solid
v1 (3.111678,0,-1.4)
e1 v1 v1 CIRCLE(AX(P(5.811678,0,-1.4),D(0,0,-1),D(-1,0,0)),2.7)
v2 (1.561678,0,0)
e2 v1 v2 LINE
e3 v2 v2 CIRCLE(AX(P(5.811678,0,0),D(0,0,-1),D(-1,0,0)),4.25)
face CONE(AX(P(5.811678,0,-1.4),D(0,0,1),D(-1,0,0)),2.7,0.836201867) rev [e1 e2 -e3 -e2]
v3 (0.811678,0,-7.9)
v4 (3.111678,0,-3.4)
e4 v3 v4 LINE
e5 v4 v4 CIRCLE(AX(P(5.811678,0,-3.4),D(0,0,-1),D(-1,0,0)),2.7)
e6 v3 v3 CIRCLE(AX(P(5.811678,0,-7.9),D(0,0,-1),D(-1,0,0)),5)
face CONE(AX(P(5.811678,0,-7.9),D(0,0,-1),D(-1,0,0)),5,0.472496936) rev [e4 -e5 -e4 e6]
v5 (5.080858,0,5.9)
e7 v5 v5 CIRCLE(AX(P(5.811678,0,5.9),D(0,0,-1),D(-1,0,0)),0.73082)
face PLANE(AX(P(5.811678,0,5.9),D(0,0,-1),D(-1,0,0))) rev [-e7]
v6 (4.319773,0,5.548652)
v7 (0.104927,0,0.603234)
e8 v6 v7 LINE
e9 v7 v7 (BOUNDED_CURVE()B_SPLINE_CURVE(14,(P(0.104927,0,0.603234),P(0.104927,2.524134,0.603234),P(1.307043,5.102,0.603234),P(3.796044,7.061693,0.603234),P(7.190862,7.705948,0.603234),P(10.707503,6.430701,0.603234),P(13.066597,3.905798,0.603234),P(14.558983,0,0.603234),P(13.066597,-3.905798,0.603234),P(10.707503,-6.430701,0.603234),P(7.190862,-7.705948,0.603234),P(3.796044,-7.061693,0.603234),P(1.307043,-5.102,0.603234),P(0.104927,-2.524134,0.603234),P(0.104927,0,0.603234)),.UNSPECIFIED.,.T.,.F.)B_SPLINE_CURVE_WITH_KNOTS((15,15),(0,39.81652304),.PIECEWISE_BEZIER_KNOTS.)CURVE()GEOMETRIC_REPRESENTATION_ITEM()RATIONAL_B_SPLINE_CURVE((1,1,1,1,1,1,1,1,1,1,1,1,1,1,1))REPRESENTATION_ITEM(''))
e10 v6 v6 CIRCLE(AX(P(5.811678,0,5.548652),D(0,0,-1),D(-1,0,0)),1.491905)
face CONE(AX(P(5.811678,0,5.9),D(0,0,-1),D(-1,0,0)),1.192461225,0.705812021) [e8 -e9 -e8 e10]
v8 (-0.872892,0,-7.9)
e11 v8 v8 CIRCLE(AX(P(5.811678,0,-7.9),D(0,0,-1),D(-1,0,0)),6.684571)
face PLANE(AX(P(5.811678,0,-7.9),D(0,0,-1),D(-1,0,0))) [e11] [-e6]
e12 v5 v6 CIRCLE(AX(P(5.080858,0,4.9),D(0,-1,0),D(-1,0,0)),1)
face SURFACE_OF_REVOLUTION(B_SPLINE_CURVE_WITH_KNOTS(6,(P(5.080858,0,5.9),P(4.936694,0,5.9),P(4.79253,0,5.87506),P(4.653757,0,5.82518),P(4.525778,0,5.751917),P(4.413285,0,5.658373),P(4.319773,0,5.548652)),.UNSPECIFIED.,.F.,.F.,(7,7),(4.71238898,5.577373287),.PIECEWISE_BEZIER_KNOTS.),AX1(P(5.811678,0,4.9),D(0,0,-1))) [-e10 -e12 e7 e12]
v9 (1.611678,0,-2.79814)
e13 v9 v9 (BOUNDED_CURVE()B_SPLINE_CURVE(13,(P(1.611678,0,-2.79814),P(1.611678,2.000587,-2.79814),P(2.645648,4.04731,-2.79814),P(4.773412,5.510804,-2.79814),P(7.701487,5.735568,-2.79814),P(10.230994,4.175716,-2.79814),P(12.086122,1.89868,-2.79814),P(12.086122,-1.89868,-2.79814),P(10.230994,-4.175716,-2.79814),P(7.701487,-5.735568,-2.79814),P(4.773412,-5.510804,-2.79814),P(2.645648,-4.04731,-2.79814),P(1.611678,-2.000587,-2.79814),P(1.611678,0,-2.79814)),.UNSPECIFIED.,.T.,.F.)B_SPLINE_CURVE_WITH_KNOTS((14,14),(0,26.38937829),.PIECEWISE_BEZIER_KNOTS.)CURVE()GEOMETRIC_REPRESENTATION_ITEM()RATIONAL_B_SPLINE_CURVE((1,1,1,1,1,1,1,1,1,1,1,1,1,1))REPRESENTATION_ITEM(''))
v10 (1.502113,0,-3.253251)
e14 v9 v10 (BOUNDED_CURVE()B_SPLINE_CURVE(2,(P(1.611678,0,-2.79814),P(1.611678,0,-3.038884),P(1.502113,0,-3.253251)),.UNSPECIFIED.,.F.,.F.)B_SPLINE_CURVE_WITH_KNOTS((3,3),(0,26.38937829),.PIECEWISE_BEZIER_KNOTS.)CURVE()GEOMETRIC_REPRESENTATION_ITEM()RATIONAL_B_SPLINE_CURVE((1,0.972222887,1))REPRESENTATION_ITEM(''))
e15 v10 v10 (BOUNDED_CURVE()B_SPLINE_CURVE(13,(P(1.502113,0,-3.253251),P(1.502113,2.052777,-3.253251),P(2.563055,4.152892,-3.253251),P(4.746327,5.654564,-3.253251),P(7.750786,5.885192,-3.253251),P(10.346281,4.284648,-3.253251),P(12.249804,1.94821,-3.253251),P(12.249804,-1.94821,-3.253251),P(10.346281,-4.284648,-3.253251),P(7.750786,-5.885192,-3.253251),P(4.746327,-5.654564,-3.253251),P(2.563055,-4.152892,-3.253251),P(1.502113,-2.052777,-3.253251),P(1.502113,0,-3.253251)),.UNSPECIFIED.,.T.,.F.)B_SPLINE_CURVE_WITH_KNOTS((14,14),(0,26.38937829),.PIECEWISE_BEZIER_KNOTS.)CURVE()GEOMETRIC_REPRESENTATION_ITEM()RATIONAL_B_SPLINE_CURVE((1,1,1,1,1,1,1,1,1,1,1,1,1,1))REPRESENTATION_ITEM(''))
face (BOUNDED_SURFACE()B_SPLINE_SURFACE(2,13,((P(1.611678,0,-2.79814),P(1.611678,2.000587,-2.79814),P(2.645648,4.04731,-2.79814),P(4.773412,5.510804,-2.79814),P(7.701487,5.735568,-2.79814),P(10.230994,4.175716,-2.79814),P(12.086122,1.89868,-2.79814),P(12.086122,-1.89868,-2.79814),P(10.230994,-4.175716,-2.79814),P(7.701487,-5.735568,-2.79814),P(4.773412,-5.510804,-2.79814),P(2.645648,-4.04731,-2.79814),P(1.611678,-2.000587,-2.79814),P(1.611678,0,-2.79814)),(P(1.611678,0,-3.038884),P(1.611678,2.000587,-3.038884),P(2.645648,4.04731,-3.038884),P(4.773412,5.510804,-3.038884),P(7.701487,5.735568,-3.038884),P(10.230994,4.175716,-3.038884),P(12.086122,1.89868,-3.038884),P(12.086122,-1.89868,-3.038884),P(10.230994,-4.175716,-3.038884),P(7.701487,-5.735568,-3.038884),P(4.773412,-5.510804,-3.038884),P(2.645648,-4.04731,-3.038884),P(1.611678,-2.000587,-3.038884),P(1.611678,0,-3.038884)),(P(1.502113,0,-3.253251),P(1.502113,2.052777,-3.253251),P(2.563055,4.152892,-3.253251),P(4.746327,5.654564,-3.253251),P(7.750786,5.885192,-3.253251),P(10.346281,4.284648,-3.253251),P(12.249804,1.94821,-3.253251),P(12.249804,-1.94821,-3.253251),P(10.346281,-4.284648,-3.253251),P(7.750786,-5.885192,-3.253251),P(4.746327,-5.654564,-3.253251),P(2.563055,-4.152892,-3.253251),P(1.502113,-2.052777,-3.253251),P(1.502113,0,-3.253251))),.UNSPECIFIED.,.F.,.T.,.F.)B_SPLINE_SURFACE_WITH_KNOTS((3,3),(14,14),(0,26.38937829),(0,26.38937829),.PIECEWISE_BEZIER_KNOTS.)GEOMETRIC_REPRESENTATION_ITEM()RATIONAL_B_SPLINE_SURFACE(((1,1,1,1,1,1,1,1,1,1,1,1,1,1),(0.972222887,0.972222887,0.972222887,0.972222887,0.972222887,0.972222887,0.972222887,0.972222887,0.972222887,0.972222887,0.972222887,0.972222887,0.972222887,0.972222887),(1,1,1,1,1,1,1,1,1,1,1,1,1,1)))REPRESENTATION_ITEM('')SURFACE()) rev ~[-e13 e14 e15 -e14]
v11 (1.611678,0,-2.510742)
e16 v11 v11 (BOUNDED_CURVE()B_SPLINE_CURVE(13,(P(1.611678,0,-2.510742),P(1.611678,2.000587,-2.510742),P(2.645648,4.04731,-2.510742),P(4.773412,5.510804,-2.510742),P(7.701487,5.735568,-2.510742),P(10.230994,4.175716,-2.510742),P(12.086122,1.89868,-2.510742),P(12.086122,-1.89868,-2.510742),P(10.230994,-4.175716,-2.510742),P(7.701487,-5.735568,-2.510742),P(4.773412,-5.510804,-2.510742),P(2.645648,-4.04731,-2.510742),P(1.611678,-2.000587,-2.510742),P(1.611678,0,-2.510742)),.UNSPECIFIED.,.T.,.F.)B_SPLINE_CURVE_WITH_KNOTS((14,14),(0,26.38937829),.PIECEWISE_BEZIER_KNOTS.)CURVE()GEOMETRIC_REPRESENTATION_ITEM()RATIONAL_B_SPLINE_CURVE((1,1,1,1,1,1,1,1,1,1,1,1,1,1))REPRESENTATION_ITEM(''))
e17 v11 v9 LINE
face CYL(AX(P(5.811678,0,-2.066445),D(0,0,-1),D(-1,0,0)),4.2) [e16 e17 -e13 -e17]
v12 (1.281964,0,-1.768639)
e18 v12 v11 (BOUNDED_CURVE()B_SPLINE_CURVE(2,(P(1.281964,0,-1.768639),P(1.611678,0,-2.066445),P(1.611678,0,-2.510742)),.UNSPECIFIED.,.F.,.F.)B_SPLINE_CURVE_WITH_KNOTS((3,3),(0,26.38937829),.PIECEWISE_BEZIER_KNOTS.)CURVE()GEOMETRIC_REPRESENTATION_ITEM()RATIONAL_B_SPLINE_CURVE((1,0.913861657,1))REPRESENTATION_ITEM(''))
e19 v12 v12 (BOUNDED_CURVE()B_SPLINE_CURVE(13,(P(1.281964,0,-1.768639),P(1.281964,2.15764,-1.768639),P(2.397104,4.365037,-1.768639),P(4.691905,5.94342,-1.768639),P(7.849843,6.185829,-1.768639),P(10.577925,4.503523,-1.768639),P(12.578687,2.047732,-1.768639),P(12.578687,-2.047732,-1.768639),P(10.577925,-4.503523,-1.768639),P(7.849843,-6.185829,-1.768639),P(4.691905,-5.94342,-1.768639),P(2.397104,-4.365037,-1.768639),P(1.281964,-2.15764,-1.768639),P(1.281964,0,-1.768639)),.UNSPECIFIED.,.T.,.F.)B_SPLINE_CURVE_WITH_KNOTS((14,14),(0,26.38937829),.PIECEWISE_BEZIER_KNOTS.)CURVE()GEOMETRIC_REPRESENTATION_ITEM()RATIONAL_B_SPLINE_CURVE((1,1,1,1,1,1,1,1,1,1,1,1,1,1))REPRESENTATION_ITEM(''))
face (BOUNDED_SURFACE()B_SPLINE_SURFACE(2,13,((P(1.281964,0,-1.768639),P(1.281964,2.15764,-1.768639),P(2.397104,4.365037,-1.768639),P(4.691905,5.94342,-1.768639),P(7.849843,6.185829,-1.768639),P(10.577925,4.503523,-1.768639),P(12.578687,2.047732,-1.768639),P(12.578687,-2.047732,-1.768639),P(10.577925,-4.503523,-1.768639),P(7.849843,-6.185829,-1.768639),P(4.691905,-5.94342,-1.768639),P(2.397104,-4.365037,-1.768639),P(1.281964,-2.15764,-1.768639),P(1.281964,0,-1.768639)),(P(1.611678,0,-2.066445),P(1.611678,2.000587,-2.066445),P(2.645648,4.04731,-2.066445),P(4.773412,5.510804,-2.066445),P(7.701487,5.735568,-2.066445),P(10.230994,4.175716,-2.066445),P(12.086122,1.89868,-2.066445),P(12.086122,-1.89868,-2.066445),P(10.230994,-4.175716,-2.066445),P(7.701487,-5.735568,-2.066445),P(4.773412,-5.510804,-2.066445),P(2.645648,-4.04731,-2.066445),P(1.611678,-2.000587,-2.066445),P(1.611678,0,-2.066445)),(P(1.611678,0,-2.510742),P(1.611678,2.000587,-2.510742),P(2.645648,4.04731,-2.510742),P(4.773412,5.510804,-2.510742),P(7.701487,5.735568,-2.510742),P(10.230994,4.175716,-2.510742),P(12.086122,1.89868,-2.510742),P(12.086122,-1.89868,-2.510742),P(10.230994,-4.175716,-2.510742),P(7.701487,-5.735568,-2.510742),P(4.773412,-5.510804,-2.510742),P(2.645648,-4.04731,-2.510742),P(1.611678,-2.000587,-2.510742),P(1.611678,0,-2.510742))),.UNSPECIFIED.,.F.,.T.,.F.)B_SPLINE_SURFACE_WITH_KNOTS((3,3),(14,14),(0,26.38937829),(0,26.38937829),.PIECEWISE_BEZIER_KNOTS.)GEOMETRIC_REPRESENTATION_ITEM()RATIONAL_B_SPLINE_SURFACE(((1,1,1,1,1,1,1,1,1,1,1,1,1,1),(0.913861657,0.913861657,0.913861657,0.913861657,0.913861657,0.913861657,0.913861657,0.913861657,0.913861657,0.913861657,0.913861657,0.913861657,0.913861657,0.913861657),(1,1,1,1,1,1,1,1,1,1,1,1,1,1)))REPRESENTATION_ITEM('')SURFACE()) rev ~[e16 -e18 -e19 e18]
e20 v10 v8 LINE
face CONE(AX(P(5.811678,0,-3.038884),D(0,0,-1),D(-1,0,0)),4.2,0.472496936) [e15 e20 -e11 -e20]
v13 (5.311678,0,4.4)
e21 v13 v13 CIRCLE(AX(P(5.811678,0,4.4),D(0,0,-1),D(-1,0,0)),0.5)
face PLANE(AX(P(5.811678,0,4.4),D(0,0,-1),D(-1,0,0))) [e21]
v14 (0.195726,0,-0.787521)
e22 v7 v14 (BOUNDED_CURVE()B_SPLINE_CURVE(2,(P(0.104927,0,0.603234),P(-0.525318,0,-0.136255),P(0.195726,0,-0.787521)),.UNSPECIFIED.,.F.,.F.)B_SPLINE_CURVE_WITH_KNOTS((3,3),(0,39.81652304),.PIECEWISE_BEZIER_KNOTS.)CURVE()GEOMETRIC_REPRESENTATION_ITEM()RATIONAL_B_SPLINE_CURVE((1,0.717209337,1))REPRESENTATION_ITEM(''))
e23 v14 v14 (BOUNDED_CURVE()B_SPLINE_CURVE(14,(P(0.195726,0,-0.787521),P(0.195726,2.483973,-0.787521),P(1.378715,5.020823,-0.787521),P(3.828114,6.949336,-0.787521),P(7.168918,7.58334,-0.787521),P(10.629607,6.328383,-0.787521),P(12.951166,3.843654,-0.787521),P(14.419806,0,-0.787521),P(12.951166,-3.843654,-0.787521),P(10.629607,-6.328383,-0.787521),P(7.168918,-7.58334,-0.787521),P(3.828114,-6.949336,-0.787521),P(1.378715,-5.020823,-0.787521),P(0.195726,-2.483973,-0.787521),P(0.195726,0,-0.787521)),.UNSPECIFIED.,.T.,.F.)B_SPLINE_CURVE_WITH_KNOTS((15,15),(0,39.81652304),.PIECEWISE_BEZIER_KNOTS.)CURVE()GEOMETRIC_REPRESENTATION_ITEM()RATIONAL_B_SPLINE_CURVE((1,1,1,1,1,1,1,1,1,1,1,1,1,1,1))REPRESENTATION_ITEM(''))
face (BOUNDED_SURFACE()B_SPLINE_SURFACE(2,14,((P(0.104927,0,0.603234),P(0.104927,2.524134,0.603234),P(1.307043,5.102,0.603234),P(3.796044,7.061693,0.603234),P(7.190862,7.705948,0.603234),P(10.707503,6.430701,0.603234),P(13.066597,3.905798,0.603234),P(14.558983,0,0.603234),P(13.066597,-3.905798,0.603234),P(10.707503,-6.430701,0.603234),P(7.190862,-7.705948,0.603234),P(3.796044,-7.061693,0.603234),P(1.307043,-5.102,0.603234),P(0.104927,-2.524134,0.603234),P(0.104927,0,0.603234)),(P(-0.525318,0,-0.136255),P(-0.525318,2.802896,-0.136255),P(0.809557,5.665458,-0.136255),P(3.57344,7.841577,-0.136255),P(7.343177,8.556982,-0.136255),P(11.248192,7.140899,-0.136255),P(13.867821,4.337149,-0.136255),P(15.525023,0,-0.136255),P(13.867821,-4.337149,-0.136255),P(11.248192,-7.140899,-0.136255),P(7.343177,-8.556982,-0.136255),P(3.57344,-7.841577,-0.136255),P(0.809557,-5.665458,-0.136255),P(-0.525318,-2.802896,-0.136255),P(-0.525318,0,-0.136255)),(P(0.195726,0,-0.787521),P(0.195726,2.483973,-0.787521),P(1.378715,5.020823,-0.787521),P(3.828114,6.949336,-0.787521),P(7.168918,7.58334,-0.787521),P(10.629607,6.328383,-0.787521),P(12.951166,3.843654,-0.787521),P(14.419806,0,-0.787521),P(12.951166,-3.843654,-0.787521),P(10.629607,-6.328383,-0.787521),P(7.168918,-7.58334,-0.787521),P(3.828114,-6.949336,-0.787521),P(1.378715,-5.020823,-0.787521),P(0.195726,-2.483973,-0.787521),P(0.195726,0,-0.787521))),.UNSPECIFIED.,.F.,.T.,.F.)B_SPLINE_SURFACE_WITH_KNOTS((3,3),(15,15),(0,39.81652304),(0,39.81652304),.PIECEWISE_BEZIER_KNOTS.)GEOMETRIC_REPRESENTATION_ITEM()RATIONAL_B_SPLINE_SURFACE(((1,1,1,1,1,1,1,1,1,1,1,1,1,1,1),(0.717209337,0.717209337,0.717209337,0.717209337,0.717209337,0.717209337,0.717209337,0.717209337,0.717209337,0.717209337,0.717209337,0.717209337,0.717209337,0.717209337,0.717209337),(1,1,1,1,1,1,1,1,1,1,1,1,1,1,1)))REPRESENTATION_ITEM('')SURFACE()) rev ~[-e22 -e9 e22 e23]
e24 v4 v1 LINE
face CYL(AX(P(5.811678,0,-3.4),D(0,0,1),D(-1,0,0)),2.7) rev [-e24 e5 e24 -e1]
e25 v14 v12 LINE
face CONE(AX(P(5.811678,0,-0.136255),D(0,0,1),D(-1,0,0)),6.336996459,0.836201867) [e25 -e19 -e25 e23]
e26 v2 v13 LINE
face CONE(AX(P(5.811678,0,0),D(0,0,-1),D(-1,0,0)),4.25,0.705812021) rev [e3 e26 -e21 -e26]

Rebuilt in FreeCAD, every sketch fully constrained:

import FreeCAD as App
import Part
import Sketcher

V = App.Vector


def edges_at(feature, points):
    """Names of the edges that pass closest to the given points."""
    edges = feature.Shape.Edges
    near = lambda p: min(range(len(edges)), key=lambda i: edges[i].distToShape(Part.Vertex(*p))[0])
    return sorted({f"Edge{near(p) + 1}" for p in points})


def add_polygon(sketch, points):
    """Adds a closed chain of lines whose ends are joined by coincident constraints."""
    first, n = sketch.GeometryCount, len(points)
    for a, b in zip(points, points[1:] + points[:1]):
        sketch.addGeometry(Part.LineSegment(App.Vector(*a, 0), App.Vector(*b, 0)), False)
    for i in range(n):
        sketch.addConstraint(Sketcher.Constraint("Coincident", first + i, 2, first + (i + 1) % n, 1))

doc = App.newDocument("Part")
body = doc.addObject("PartDesign::Body", "Body")

# Sketch on XZ plane
sketch1 = body.newObject("Sketcher::SketchObject", "Sketch")
sketch1.AttachmentSupport = (doc.getObject("XZ_Plane"), [""])
sketch1.MapMode = "FlatFace"
add_polygon(sketch1, [(5.3, 4.4), (5.8, 4.4), (5.8, 5.9), (4.6, 5.9), (-0.5, -0.1), (1.6, -2.1), (1.6, -3), (-0.9, -7.9), (0.8, -7.9), (3.1, -3.4), (3.1, -1.4), (1.6, 0)])  # lines 0-11
sketch1.addGeometry(Part.LineSegment(V(5.8, 5.9, 0), V(5.8, -7.9, 0)), True)  # axis
sketch1.addConstraint(Sketcher.Constraint("Horizontal", 0))
sketch1.addConstraint(Sketcher.Constraint("Vertical", 1))
sketch1.addConstraint(Sketcher.Constraint("Horizontal", 2))
sketch1.addConstraint(Sketcher.Constraint("Vertical", 5))
sketch1.addConstraint(Sketcher.Constraint("Horizontal", 7))
sketch1.addConstraint(Sketcher.Constraint("Vertical", 9))
sketch1.addConstraint(Sketcher.Constraint("Vertical", 12))
sketch1.addConstraint(Sketcher.Constraint("Coincident", 12, 1, 1, 2))
sketch1.addConstraint(Sketcher.Constraint("PointOnObject", 10, 2, -1))
sketch1.addConstraint(Sketcher.Constraint("Parallel", 6, 8))
sketch1.addConstraint(Sketcher.Constraint("Parallel", 4, 10))
sketch1.addConstraint(Sketcher.Constraint("Parallel", 3, 11))
sketch1.addConstraint(Sketcher.Constraint("Horizontal", 7, 2, 12, 2))
sketch1.addConstraint(Sketcher.Constraint("DistanceY", 9, 1, 9, 2, 2.0))
sketch1.addConstraint(Sketcher.Constraint("DistanceX", 0, 1, 0, 2, 0.5))
sketch1.addConstraint(Sketcher.Constraint("DistanceY", 1, 1, 1, 2, 1.5))
sketch1.addConstraint(Sketcher.Constraint("DistanceY", 12, 2, 12, 1, 13.8))
sketch1.addConstraint(Sketcher.Constraint("DistanceX", 7, 2, 0, 2, 5.0))
sketch1.addConstraint(Sketcher.Constraint("DistanceY", -1, 1, 0, 2, 4.4))
sketch1.addConstraint(Sketcher.Constraint("DistanceY", 8, 2, -1, 1, 3.4))
sketch1.addConstraint(Sketcher.Constraint("DistanceX", 4, 2, 0, 2, 4.2))
sketch1.addConstraint(Sketcher.Constraint("DistanceX", 5, 2, 8, 2, 1.5))
sketch1.addConstraint(Sketcher.Constraint("DistanceX", 10, 2, 4, 2, 0.05))
sketch1.addConstraint(Sketcher.Constraint("DistanceX", 2, 2, 2, 1, 1.192461))
sketch1.addConstraint(Sketcher.Constraint("DistanceX", 7, 1, 7, 2, 1.684571))
sketch1.addConstraint(Sketcher.Constraint("DistanceY", 5, 2, 5, 1, 0.972439))
sketch1.addConstraint(Sketcher.Constraint("DistanceX", -1, 1, 0, 2, 5.811678))
revolution = body.newObject("PartDesign::Revolution", "Revolution")
revolution.Profile = sketch1
revolution.ReferenceAxis = (sketch1, ["Axis0"])
revolution.Angle = 360
doc.recompute()

fillet = body.newObject("PartDesign::Fillet", "Fillet")
fillet.Base = (revolution, edges_at(revolution, [
    (12.149, 0, -0.136),
    (7.004, 0, 5.9),
    (10.012, 0, -2.066),
    (10.012, 0, -3.039),
]))
fillet.Radius = 1

doc.recompute()
